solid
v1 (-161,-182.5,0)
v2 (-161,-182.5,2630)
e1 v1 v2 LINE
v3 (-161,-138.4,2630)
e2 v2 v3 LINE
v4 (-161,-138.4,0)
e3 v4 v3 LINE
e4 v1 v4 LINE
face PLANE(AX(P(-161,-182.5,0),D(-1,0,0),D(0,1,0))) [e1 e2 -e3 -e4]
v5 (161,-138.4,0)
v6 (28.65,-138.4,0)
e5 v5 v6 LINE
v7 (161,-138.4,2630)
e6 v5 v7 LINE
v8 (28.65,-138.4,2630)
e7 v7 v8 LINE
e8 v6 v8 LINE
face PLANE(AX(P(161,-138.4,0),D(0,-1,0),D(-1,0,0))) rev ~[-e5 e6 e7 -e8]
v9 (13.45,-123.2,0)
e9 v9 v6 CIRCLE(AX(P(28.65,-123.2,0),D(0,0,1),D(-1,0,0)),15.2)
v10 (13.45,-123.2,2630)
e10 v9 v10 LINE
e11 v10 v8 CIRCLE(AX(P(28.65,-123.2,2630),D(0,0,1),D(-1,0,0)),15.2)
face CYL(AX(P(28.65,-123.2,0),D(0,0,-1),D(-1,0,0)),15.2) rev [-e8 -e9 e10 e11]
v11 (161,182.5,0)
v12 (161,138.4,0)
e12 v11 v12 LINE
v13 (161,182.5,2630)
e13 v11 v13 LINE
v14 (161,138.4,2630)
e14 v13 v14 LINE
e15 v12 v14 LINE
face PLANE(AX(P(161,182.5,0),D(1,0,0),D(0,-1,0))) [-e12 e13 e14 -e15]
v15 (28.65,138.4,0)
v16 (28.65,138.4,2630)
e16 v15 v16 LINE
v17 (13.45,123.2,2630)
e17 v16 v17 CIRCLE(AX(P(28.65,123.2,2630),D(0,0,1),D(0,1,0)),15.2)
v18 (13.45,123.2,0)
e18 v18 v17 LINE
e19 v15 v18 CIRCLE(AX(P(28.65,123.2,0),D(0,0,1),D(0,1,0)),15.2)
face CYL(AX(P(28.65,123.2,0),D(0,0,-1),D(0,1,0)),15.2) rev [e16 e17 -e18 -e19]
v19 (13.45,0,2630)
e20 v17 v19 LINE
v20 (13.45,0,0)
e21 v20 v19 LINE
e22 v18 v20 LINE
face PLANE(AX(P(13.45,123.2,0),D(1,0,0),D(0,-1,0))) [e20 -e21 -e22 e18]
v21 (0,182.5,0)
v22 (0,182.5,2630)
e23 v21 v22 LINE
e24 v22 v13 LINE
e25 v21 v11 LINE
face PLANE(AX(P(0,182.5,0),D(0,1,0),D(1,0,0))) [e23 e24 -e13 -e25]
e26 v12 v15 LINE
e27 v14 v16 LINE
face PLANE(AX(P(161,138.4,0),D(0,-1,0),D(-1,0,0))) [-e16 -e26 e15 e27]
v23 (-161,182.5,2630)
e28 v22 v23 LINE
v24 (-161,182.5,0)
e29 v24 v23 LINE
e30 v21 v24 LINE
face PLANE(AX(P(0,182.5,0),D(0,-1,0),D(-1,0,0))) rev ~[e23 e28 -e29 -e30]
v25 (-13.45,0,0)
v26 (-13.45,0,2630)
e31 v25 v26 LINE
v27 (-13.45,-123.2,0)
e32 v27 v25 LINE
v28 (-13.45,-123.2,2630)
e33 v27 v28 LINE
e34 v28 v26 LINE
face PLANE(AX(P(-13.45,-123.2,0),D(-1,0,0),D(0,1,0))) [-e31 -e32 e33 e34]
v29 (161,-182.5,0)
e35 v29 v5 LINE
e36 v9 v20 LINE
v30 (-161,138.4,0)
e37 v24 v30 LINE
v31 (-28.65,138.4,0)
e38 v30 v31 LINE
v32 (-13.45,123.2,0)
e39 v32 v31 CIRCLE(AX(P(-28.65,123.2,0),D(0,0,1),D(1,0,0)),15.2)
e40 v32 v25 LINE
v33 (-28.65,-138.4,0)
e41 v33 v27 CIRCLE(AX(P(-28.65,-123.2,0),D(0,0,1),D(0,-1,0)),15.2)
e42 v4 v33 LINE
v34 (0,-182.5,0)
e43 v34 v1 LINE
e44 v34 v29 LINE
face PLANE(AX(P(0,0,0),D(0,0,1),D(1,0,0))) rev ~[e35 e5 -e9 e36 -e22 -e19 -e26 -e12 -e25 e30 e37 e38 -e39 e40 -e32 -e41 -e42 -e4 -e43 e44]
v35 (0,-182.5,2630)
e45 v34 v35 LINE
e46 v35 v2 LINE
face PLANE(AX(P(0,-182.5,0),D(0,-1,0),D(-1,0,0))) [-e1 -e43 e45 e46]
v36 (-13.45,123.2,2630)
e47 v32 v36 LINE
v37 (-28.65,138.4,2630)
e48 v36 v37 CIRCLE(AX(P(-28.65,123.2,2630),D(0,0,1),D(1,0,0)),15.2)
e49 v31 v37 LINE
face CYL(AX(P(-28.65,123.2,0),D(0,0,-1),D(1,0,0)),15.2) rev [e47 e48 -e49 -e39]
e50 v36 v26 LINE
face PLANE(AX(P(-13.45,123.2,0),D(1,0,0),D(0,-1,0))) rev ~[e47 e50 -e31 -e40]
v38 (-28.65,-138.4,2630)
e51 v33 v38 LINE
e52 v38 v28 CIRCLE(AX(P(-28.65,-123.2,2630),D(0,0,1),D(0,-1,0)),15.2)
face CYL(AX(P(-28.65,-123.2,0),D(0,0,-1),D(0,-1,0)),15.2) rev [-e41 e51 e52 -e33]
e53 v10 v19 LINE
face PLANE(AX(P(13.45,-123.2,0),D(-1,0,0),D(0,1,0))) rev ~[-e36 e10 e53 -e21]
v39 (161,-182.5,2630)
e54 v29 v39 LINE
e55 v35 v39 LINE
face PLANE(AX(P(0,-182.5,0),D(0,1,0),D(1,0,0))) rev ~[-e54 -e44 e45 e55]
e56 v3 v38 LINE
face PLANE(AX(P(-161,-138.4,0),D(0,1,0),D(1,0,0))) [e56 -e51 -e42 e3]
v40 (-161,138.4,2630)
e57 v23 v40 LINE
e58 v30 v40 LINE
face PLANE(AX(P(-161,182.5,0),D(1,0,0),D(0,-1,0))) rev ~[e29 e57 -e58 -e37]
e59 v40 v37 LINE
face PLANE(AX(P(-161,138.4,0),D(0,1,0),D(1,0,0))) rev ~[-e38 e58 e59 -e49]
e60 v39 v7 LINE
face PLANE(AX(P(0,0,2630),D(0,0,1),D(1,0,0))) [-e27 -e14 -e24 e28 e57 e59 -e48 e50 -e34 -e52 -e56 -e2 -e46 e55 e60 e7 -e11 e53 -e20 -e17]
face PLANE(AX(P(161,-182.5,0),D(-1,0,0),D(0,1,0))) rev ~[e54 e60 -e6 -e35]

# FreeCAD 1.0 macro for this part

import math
import FreeCAD as App
import Part
import Sketcher
from FreeCAD import Vector

doc = App.newDocument("Part")
body = doc.addObject("PartDesign::Body", "Body")

sketch1 = body.newObject("Sketcher::SketchObject", "Sketch")
sketch1.AttachmentSupport = (doc.getObject("XY_Plane"), [""])
sketch1.MapMode = "FlatFace"
sketch1.addGeometry([
    Part.LineSegment(Vector(-161, -138, 0), Vector(-161, -182, 0)),
    Part.LineSegment(Vector(-161, -182, 0), Vector(161, -182, 0)),
    Part.LineSegment(Vector(161, -182, 0), Vector(161, -138, 0)),
    Part.LineSegment(Vector(161, -138, 0), Vector(29, -138, 0)),
    Part.ArcOfCircle(Part.Circle(Vector(29, -123, 0), Vector(0, 0, 1), 15), math.radians(180), math.radians(270)),
    Part.LineSegment(Vector(13, -123, 0), Vector(13, 123, 0)),
    Part.ArcOfCircle(Part.Circle(Vector(29, 123, 0), Vector(0, 0, 1), 15), math.radians(90), math.radians(180)),
    Part.LineSegment(Vector(29, 138, 0), Vector(161, 138, 0)),
    Part.LineSegment(Vector(161, 138, 0), Vector(161, 182, 0)),
    Part.LineSegment(Vector(161, 182, 0), Vector(-161, 182, 0)),
    Part.LineSegment(Vector(-161, 182, 0), Vector(-161, 138, 0)),
    Part.LineSegment(Vector(-161, 138, 0), Vector(-29, 138, 0)),
    Part.ArcOfCircle(Part.Circle(Vector(-29, 123, 0), Vector(0, 0, 1), 15), math.radians(0), math.radians(90)),
    Part.LineSegment(Vector(-13, 123, 0), Vector(-13, -123, 0)),
    Part.ArcOfCircle(Part.Circle(Vector(-29, -123, 0), Vector(0, 0, 1), 15), math.radians(-90), math.radians(0)),
    Part.LineSegment(Vector(-29, -138, 0), Vector(-161, -138, 0)),
], False)
sketch1.addConstraint([
    Sketcher.Constraint("Coincident", 0, 2, 1, 1),
    Sketcher.Constraint("Coincident", 1, 2, 2, 1),
    Sketcher.Constraint("Coincident", 2, 2, 3, 1),
    Sketcher.Constraint("Tangent", 3, 2, 4, 2),
    Sketcher.Constraint("Tangent", 4, 1, 5, 1),
    Sketcher.Constraint("Tangent", 5, 2, 6, 2),
    Sketcher.Constraint("Tangent", 6, 1, 7, 1),
    Sketcher.Constraint("Coincident", 7, 2, 8, 1),
    Sketcher.Constraint("Coincident", 8, 2, 9, 1),
    Sketcher.Constraint("Coincident", 9, 2, 10, 1),
    Sketcher.Constraint("Coincident", 10, 2, 11, 1),
    Sketcher.Constraint("Tangent", 11, 2, 12, 2),
    Sketcher.Constraint("Tangent", 12, 1, 13, 1),
    Sketcher.Constraint("Tangent", 13, 2, 14, 2),
    Sketcher.Constraint("Tangent", 14, 1, 15, 1),
    Sketcher.Constraint("Coincident", 15, 2, 0, 1),
    Sketcher.Constraint("Vertical", 0),
    Sketcher.Constraint("Horizontal", 1),
    Sketcher.Constraint("Vertical", 2),
    Sketcher.Constraint("Horizontal", 3),
    Sketcher.Constraint("Vertical", 5),
    Sketcher.Constraint("Horizontal", 7),
    Sketcher.Constraint("Vertical", 8),
    Sketcher.Constraint("Horizontal", 9),
    Sketcher.Constraint("Vertical", 10),
    Sketcher.Constraint("Horizontal", 11),
    Sketcher.Constraint("Vertical", 13),
    Sketcher.Constraint("Horizontal", 15),
    Sketcher.Constraint("Equal", 4, 6),
    Sketcher.Constraint("Equal", 6, 12),
    Sketcher.Constraint("Equal", 12, 14),
    Sketcher.Constraint("Symmetric", 4, 3, 12, 3, -1, 1),
    Sketcher.Constraint("Symmetric", 0, 2, 8, 2, -1, 1),
    Sketcher.Constraint("Symmetric", 7, 2, 10, 2, -2),
    Sketcher.Constraint("Symmetric", 2, 2, 15, 2, -2),
    Sketcher.Constraint("Radius", 4, 15.2),
    Sketcher.Constraint("DistanceY", 0, 2, 0, 1, 44.1),
    Sketcher.Constraint("DistanceX", 0, 2, -1, 1, 161.0),
    Sketcher.Constraint("DistanceY", 0, 2, -1, 1, 182.5),
    Sketcher.Constraint("DistanceX", -1, 1, 4, 1, 13.45),
])
pad1 = body.newObject("PartDesign::Pad", "Pad")
pad1.Profile = sketch1
pad1.Length = 2630

doc.recompute()
